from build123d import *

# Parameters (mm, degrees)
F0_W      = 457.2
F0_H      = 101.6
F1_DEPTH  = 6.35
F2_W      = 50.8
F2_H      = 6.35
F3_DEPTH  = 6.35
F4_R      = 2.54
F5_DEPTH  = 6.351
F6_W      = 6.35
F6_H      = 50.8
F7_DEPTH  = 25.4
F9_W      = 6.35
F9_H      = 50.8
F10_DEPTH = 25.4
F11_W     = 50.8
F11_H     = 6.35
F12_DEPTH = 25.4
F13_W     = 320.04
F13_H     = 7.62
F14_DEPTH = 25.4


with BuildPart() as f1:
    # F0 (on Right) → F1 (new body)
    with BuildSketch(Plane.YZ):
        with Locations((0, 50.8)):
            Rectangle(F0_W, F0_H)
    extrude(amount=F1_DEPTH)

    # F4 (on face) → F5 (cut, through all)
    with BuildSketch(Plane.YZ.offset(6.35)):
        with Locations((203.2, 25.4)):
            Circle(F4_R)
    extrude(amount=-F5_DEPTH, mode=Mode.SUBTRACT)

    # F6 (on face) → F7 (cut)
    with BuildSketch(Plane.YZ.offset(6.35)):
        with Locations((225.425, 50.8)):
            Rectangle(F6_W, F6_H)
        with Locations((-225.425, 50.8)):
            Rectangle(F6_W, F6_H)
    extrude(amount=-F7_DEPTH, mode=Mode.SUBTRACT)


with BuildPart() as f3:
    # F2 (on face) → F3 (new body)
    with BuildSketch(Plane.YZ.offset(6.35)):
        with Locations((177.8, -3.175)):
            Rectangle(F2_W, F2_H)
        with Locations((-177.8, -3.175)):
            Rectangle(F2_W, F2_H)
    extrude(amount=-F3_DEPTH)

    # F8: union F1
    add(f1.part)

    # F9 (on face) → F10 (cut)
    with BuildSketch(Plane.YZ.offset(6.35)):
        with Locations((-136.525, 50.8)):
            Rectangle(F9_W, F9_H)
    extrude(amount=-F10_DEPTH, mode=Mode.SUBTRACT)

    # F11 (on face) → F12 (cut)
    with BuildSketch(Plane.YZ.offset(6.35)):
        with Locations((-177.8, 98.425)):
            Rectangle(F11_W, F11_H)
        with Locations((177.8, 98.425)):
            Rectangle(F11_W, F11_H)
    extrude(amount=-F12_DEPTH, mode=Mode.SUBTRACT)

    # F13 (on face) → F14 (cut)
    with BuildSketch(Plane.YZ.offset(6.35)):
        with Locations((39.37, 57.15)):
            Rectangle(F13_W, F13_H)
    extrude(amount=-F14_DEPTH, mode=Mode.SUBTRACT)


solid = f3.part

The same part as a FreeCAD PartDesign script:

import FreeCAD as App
import Part
import Sketcher

V = App.Vector
Q = App.Units.Quantity


def add_polygon(sketch, points):
    """Adds a closed chain of lines whose ends are joined by coincident constraints."""
    first, n = sketch.GeometryCount, len(points)
    for a, b in zip(points, points[1:] + points[:1]):
        sketch.addGeometry(Part.LineSegment(App.Vector(*a, 0), App.Vector(*b, 0)), False)
    for i in range(n):
        sketch.addConstraint(Sketcher.Constraint("Coincident", first + i, 2, first + (i + 1) % n, 1))

doc = App.newDocument("Part")
body = doc.addObject("PartDesign::Body", "Body")

# Sketch on YZ plane
sketch1 = doc.addObject("Sketcher::SketchObject", "Sketch")
body.addObject(sketch1)
sketch1.AttachmentSupport = (doc.YZ_Plane, [""])
sketch1.MapMode = "FlatFace"
add_polygon(sketch1, [(-228.6, 101.6), (-228.6, 0), (228.6, 0), (228.6, 101.6)])  # lines 0-3
sketch1.addConstraint(Sketcher.Constraint("Vertical", 0))
sketch1.addConstraint(Sketcher.Constraint("Horizontal", 1))
sketch1.addConstraint(Sketcher.Constraint("Vertical", 2))
sketch1.addConstraint(Sketcher.Constraint("Horizontal", 3))
sketch1.addConstraint(Sketcher.Constraint("Symmetric", 0, 2, 1, 2, -1, 1))
sketch1.addConstraint(Sketcher.Constraint("DistanceX", 1, 1, 1, 2, Q("18 in")))
sketch1.addConstraint(Sketcher.Constraint("DistanceY", 0, 2, 0, 1, Q("4 in")))
pad1 = doc.addObject("PartDesign::Pad", "Pad")
body.addObject(pad1)
pad1.Profile = sketch1
pad1.Length = Q("0.25 in")

# Sketch on YZ plane
sketch2 = doc.addObject("Sketcher::SketchObject", "Sketch001")
body.addObject(sketch2)
sketch2.AttachmentSupport = (doc.YZ_Plane, [""])
sketch2.MapMode = "FlatFace"
sketch2.AttachmentOffset = App.Placement(V(0, 0, 0.25 * 25.4), App.Rotation())
sketch2.addGeometry(Part.Circle(V(203.2, 25.4, 0), V(0, 0, 1), 2.54), False)
sketch2.addConstraint(Sketcher.Constraint("Diameter", 0, Q("0.2 in")))
sketch2.addConstraint(Sketcher.Constraint("DistanceX", -1, 1, 0, 3, Q("8 in")))
sketch2.addConstraint(Sketcher.Constraint("DistanceY", -1, 1, 0, 3, Q("1 in")))
pocket1 = doc.addObject("PartDesign::Pocket", "Pocket")
body.addObject(pocket1)
pocket1.Profile = sketch2
pocket1.Type = "ThroughAll"

# Sketch on YZ plane
sketch3 = doc.addObject("Sketcher::SketchObject", "Sketch002")
body.addObject(sketch3)
sketch3.AttachmentSupport = (doc.YZ_Plane, [""])
sketch3.MapMode = "FlatFace"
sketch3.AttachmentOffset = App.Placement(V(0, 0, 0.25 * 25.4), App.Rotation())
add_polygon(sketch3, [(222.25, 76.2), (222.25, 25.4), (228.6, 25.4), (228.6, 76.2)])  # lines 0-3
add_polygon(sketch3, [(-228.6, 76.2), (-228.6, 25.4), (-222.25, 25.4), (-222.25, 76.2)])  # lines 4-7
sketch3.addConstraint(Sketcher.Constraint("Vertical", 0))
sketch3.addConstraint(Sketcher.Constraint("Horizontal", 1))
sketch3.addConstraint(Sketcher.Constraint("Vertical", 2))
sketch3.addConstraint(Sketcher.Constraint("Horizontal", 3))
sketch3.addConstraint(Sketcher.Constraint("Vertical", 4))
sketch3.addConstraint(Sketcher.Constraint("Horizontal", 5))
sketch3.addConstraint(Sketcher.Constraint("Vertical", 6))
sketch3.addConstraint(Sketcher.Constraint("Horizontal", 7))
sketch3.addConstraint(Sketcher.Constraint("Symmetric", 1, 2, 4, 2, -2))
sketch3.addConstraint(Sketcher.Constraint("Symmetric", 3, 2, 6, 2, -2))
sketch3.addConstraint(Sketcher.Constraint("DistanceY", 0, 2, 0, 1, Q("2 in")))
sketch3.addConstraint(Sketcher.Constraint("DistanceY", -1, 1, 0, 2, Q("1 in")))
sketch3.addConstraint(Sketcher.Constraint("DistanceX", -1, 1, 1, 2, Q("9 in")))
sketch3.addConstraint(Sketcher.Constraint("DistanceX", 1, 1, 1, 2, Q("0.25 in")))
pocket2 = doc.addObject("PartDesign::Pocket", "Pocket001")
body.addObject(pocket2)
pocket2.Profile = sketch3
pocket2.Length = Q("1 in")
body2 = doc.addObject("PartDesign::Body", "Body001")
body2.AllowCompound = True

# Sketch on YZ plane
sketch4 = doc.addObject("Sketcher::SketchObject", "Sketch003")
body2.addObject(sketch4)
sketch4.AttachmentSupport = (doc.getObject("YZ_Plane001"), [""])
sketch4.MapMode = "FlatFace"
sketch4.AttachmentOffset = App.Placement(V(0, 0, 0.25 * 25.4), App.Rotation())
add_polygon(sketch4, [(152.4, 0), (152.4, -6.35), (203.2, -6.35), (203.2, 0)])  # lines 0-3
add_polygon(sketch4, [(-203.2, 0), (-203.2, -6.35), (-152.4, -6.35), (-152.4, 0)])  # lines 4-7
sketch4.addConstraint(Sketcher.Constraint("Vertical", 0))
sketch4.addConstraint(Sketcher.Constraint("Horizontal", 1))
sketch4.addConstraint(Sketcher.Constraint("Vertical", 2))
sketch4.addConstraint(Sketcher.Constraint("Horizontal", 3))
sketch4.addConstraint(Sketcher.Constraint("Vertical", 4))
sketch4.addConstraint(Sketcher.Constraint("Horizontal", 5))
sketch4.addConstraint(Sketcher.Constraint("Vertical", 6))
sketch4.addConstraint(Sketcher.Constraint("Horizontal", 7))
sketch4.addConstraint(Sketcher.Constraint("Symmetric", 3, 2, 6, 2, -1, 1))
sketch4.addConstraint(Sketcher.Constraint("Symmetric", 1, 2, 4, 2, -2))
sketch4.addConstraint(Sketcher.Constraint("PointOnObject", 2, 2, -1))
sketch4.addConstraint(Sketcher.Constraint("DistanceX", 1, 1, 1, 2, Q("2 in")))
sketch4.addConstraint(Sketcher.Constraint("DistanceX", -1, 1, 0, 2, Q("6 in")))
sketch4.addConstraint(Sketcher.Constraint("DistanceY", 0, 2, 0, 1, Q("0.25 in")))
pad2 = doc.addObject("PartDesign::Pad", "Pad001")
body2.addObject(pad2)
pad2.Profile = sketch4
pad2.Length = Q("0.25 in")
pad2.Reversed = True
doc.recompute()

boolean = doc.addObject("PartDesign::Boolean", "Boolean")
body2.addObject(boolean)
boolean.Type = "Fuse"
boolean.addObjects([body])

# Sketch on YZ plane
sketch5 = doc.addObject("Sketcher::SketchObject", "Sketch004")
body2.addObject(sketch5)
sketch5.AttachmentSupport = (doc.getObject("YZ_Plane001"), [""])
sketch5.MapMode = "FlatFace"
sketch5.AttachmentOffset = App.Placement(V(0, 0, 0.25 * 25.4), App.Rotation())
add_polygon(sketch5, [(-139.7, 76.2), (-139.7, 25.4), (-133.35, 25.4), (-133.35, 76.2)])  # lines 0-3
sketch5.addConstraint(Sketcher.Constraint("Vertical", 0))
sketch5.addConstraint(Sketcher.Constraint("Horizontal", 1))
sketch5.addConstraint(Sketcher.Constraint("Vertical", 2))
sketch5.addConstraint(Sketcher.Constraint("Horizontal", 3))
sketch5.addConstraint(Sketcher.Constraint("DistanceY", 0, 2, 0, 1, Q("2 in")))
sketch5.addConstraint(Sketcher.Constraint("DistanceY", -1, 1, 0, 2, Q("1 in")))
sketch5.addConstraint(Sketcher.Constraint("DistanceX", 1, 1, 1, 2, Q("0.25 in")))
sketch5.addConstraint(Sketcher.Constraint("DistanceX", 0, 2, -1, 1, Q("5.5 in")))
pocket3 = doc.addObject("PartDesign::Pocket", "Pocket002")
body2.addObject(pocket3)
pocket3.Profile = sketch5
pocket3.Length = Q("1 in")

# Sketch on YZ plane
sketch6 = doc.addObject("Sketcher::SketchObject", "Sketch005")
body2.addObject(sketch6)
sketch6.AttachmentSupport = (doc.getObject("YZ_Plane001"), [""])
sketch6.MapMode = "FlatFace"
sketch6.AttachmentOffset = App.Placement(V(0, 0, 0.25 * 25.4), App.Rotation())
add_polygon(sketch6, [(-203.2, 101.6), (-203.2, 95.25), (-152.4, 95.25), (-152.4, 101.6)])  # lines 0-3
add_polygon(sketch6, [(152.4, 101.6), (152.4, 95.25), (203.2, 95.25), (203.2, 101.6)])  # lines 4-7
sketch6.addConstraint(Sketcher.Constraint("Vertical", 0))
sketch6.addConstraint(Sketcher.Constraint("Horizontal", 1))
sketch6.addConstraint(Sketcher.Constraint("Vertical", 2))
sketch6.addConstraint(Sketcher.Constraint("Horizontal", 3))
sketch6.addConstraint(Sketcher.Constraint("Vertical", 4))
sketch6.addConstraint(Sketcher.Constraint("Horizontal", 5))
sketch6.addConstraint(Sketcher.Constraint("Vertical", 6))
sketch6.addConstraint(Sketcher.Constraint("Horizontal", 7))
sketch6.addConstraint(Sketcher.Constraint("Symmetric", 1, 2, 4, 2, -2))
sketch6.addConstraint(Sketcher.Constraint("Symmetric", 3, 2, 6, 2, -2))
sketch6.addConstraint(Sketcher.Constraint("DistanceX", 1, 1, 1, 2, Q("2 in")))
sketch6.addConstraint(Sketcher.Constraint("DistanceX", 0, 2, -1, 1, Q("8 in")))
sketch6.addConstraint(Sketcher.Constraint("DistanceY", -1, 1, 2, 2, Q("4 in")))
sketch6.addConstraint(Sketcher.Constraint("DistanceY", 0, 2, 0, 1, Q("0.25 in")))
pocket4 = doc.addObject("PartDesign::Pocket", "Pocket003")
body2.addObject(pocket4)
pocket4.Profile = sketch6
pocket4.Length = Q("1 in")

# Sketch on YZ plane
sketch7 = doc.addObject("Sketcher::SketchObject", "Sketch006")
body2.addObject(sketch7)
sketch7.AttachmentSupport = (doc.getObject("YZ_Plane001"), [""])
sketch7.MapMode = "FlatFace"
sketch7.AttachmentOffset = App.Placement(V(0, 0, 0.25 * 25.4), App.Rotation())
add_polygon(sketch7, [(-120.65, 60.96), (-120.65, 53.34), (199.39, 53.34), (199.39, 60.96)])  # lines 0-3
sketch7.addConstraint(Sketcher.Constraint("Vertical", 0))
sketch7.addConstraint(Sketcher.Constraint("Horizontal", 1))
sketch7.addConstraint(Sketcher.Constraint("Vertical", 2))
sketch7.addConstraint(Sketcher.Constraint("Horizontal", 3))
sketch7.addConstraint(Sketcher.Constraint("DistanceX", 1, 1, 1, 2, Q("12.6 in")))
sketch7.addConstraint(Sketcher.Constraint("DistanceY", 0, 2, 0, 1, Q("0.3 in")))
sketch7.addConstraint(Sketcher.Constraint("DistanceY", -1, 1, 0, 2, Q("2.1 in")))
sketch7.addConstraint(Sketcher.Constraint("DistanceX", 0, 2, -1, 1, Q("4.75 in")))
pocket5 = doc.addObject("PartDesign::Pocket", "Pocket004")
body2.addObject(pocket5)
pocket5.Profile = sketch7
pocket5.Length = Q("1 in")

doc.recompute()
